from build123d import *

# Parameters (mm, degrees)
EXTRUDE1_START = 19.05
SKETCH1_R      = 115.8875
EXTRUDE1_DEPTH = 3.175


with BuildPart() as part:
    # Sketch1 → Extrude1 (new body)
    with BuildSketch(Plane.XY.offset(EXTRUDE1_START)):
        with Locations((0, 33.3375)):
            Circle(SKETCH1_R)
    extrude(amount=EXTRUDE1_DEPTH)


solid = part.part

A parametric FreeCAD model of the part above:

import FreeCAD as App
import Part
import Sketcher
from FreeCAD import Vector
Q = App.Units.Quantity

doc = App.newDocument("Part")
params = doc.addObject("Spreadsheet::Sheet", "Params")
for row, (alias, value) in enumerate([
    ("sketch1_diameter", "9.125 in"),
    ("pad1_length", "0.125 in"),
], start=1):
    params.set(f"A{row}", alias)
    params.set(f"B{row}", "=" + value)
    params.setAlias(f"B{row}", alias)

body = doc.addObject("PartDesign::Body", "Body")

# Sketch on XY plane
sketch1 = body.newObject("Sketcher::SketchObject", "Sketch")
sketch1.AttachmentSupport = (doc.getObject("XY_Plane"), [""])
sketch1.MapMode = "FlatFace"
sketch1.AttachmentOffset = App.Placement(Vector(0, 0, 0.75 * 25.4), App.Rotation())
sketch1.addGeometry(Part.Circle(Vector(0, 33.3375, 0), Vector(0, 0, 1), 115.8875), False)
sketch1.addConstraint([
    Sketcher.Constraint("PointOnObject", 0, 3, -2),
    Sketcher.Constraint("Diameter", 0, Q("9.125 in")),
    Sketcher.Constraint("DistanceY", -1, 1, 0, 3, Q("1.3125 in")),
])
sketch1.setExpression("Constraints[1]", "Params.sketch1_diameter")
pad1 = body.newObject("PartDesign::Pad", "Pad")
pad1.Profile = sketch1
pad1.setExpression("Length", "Params.pad1_length")

doc.recompute()
